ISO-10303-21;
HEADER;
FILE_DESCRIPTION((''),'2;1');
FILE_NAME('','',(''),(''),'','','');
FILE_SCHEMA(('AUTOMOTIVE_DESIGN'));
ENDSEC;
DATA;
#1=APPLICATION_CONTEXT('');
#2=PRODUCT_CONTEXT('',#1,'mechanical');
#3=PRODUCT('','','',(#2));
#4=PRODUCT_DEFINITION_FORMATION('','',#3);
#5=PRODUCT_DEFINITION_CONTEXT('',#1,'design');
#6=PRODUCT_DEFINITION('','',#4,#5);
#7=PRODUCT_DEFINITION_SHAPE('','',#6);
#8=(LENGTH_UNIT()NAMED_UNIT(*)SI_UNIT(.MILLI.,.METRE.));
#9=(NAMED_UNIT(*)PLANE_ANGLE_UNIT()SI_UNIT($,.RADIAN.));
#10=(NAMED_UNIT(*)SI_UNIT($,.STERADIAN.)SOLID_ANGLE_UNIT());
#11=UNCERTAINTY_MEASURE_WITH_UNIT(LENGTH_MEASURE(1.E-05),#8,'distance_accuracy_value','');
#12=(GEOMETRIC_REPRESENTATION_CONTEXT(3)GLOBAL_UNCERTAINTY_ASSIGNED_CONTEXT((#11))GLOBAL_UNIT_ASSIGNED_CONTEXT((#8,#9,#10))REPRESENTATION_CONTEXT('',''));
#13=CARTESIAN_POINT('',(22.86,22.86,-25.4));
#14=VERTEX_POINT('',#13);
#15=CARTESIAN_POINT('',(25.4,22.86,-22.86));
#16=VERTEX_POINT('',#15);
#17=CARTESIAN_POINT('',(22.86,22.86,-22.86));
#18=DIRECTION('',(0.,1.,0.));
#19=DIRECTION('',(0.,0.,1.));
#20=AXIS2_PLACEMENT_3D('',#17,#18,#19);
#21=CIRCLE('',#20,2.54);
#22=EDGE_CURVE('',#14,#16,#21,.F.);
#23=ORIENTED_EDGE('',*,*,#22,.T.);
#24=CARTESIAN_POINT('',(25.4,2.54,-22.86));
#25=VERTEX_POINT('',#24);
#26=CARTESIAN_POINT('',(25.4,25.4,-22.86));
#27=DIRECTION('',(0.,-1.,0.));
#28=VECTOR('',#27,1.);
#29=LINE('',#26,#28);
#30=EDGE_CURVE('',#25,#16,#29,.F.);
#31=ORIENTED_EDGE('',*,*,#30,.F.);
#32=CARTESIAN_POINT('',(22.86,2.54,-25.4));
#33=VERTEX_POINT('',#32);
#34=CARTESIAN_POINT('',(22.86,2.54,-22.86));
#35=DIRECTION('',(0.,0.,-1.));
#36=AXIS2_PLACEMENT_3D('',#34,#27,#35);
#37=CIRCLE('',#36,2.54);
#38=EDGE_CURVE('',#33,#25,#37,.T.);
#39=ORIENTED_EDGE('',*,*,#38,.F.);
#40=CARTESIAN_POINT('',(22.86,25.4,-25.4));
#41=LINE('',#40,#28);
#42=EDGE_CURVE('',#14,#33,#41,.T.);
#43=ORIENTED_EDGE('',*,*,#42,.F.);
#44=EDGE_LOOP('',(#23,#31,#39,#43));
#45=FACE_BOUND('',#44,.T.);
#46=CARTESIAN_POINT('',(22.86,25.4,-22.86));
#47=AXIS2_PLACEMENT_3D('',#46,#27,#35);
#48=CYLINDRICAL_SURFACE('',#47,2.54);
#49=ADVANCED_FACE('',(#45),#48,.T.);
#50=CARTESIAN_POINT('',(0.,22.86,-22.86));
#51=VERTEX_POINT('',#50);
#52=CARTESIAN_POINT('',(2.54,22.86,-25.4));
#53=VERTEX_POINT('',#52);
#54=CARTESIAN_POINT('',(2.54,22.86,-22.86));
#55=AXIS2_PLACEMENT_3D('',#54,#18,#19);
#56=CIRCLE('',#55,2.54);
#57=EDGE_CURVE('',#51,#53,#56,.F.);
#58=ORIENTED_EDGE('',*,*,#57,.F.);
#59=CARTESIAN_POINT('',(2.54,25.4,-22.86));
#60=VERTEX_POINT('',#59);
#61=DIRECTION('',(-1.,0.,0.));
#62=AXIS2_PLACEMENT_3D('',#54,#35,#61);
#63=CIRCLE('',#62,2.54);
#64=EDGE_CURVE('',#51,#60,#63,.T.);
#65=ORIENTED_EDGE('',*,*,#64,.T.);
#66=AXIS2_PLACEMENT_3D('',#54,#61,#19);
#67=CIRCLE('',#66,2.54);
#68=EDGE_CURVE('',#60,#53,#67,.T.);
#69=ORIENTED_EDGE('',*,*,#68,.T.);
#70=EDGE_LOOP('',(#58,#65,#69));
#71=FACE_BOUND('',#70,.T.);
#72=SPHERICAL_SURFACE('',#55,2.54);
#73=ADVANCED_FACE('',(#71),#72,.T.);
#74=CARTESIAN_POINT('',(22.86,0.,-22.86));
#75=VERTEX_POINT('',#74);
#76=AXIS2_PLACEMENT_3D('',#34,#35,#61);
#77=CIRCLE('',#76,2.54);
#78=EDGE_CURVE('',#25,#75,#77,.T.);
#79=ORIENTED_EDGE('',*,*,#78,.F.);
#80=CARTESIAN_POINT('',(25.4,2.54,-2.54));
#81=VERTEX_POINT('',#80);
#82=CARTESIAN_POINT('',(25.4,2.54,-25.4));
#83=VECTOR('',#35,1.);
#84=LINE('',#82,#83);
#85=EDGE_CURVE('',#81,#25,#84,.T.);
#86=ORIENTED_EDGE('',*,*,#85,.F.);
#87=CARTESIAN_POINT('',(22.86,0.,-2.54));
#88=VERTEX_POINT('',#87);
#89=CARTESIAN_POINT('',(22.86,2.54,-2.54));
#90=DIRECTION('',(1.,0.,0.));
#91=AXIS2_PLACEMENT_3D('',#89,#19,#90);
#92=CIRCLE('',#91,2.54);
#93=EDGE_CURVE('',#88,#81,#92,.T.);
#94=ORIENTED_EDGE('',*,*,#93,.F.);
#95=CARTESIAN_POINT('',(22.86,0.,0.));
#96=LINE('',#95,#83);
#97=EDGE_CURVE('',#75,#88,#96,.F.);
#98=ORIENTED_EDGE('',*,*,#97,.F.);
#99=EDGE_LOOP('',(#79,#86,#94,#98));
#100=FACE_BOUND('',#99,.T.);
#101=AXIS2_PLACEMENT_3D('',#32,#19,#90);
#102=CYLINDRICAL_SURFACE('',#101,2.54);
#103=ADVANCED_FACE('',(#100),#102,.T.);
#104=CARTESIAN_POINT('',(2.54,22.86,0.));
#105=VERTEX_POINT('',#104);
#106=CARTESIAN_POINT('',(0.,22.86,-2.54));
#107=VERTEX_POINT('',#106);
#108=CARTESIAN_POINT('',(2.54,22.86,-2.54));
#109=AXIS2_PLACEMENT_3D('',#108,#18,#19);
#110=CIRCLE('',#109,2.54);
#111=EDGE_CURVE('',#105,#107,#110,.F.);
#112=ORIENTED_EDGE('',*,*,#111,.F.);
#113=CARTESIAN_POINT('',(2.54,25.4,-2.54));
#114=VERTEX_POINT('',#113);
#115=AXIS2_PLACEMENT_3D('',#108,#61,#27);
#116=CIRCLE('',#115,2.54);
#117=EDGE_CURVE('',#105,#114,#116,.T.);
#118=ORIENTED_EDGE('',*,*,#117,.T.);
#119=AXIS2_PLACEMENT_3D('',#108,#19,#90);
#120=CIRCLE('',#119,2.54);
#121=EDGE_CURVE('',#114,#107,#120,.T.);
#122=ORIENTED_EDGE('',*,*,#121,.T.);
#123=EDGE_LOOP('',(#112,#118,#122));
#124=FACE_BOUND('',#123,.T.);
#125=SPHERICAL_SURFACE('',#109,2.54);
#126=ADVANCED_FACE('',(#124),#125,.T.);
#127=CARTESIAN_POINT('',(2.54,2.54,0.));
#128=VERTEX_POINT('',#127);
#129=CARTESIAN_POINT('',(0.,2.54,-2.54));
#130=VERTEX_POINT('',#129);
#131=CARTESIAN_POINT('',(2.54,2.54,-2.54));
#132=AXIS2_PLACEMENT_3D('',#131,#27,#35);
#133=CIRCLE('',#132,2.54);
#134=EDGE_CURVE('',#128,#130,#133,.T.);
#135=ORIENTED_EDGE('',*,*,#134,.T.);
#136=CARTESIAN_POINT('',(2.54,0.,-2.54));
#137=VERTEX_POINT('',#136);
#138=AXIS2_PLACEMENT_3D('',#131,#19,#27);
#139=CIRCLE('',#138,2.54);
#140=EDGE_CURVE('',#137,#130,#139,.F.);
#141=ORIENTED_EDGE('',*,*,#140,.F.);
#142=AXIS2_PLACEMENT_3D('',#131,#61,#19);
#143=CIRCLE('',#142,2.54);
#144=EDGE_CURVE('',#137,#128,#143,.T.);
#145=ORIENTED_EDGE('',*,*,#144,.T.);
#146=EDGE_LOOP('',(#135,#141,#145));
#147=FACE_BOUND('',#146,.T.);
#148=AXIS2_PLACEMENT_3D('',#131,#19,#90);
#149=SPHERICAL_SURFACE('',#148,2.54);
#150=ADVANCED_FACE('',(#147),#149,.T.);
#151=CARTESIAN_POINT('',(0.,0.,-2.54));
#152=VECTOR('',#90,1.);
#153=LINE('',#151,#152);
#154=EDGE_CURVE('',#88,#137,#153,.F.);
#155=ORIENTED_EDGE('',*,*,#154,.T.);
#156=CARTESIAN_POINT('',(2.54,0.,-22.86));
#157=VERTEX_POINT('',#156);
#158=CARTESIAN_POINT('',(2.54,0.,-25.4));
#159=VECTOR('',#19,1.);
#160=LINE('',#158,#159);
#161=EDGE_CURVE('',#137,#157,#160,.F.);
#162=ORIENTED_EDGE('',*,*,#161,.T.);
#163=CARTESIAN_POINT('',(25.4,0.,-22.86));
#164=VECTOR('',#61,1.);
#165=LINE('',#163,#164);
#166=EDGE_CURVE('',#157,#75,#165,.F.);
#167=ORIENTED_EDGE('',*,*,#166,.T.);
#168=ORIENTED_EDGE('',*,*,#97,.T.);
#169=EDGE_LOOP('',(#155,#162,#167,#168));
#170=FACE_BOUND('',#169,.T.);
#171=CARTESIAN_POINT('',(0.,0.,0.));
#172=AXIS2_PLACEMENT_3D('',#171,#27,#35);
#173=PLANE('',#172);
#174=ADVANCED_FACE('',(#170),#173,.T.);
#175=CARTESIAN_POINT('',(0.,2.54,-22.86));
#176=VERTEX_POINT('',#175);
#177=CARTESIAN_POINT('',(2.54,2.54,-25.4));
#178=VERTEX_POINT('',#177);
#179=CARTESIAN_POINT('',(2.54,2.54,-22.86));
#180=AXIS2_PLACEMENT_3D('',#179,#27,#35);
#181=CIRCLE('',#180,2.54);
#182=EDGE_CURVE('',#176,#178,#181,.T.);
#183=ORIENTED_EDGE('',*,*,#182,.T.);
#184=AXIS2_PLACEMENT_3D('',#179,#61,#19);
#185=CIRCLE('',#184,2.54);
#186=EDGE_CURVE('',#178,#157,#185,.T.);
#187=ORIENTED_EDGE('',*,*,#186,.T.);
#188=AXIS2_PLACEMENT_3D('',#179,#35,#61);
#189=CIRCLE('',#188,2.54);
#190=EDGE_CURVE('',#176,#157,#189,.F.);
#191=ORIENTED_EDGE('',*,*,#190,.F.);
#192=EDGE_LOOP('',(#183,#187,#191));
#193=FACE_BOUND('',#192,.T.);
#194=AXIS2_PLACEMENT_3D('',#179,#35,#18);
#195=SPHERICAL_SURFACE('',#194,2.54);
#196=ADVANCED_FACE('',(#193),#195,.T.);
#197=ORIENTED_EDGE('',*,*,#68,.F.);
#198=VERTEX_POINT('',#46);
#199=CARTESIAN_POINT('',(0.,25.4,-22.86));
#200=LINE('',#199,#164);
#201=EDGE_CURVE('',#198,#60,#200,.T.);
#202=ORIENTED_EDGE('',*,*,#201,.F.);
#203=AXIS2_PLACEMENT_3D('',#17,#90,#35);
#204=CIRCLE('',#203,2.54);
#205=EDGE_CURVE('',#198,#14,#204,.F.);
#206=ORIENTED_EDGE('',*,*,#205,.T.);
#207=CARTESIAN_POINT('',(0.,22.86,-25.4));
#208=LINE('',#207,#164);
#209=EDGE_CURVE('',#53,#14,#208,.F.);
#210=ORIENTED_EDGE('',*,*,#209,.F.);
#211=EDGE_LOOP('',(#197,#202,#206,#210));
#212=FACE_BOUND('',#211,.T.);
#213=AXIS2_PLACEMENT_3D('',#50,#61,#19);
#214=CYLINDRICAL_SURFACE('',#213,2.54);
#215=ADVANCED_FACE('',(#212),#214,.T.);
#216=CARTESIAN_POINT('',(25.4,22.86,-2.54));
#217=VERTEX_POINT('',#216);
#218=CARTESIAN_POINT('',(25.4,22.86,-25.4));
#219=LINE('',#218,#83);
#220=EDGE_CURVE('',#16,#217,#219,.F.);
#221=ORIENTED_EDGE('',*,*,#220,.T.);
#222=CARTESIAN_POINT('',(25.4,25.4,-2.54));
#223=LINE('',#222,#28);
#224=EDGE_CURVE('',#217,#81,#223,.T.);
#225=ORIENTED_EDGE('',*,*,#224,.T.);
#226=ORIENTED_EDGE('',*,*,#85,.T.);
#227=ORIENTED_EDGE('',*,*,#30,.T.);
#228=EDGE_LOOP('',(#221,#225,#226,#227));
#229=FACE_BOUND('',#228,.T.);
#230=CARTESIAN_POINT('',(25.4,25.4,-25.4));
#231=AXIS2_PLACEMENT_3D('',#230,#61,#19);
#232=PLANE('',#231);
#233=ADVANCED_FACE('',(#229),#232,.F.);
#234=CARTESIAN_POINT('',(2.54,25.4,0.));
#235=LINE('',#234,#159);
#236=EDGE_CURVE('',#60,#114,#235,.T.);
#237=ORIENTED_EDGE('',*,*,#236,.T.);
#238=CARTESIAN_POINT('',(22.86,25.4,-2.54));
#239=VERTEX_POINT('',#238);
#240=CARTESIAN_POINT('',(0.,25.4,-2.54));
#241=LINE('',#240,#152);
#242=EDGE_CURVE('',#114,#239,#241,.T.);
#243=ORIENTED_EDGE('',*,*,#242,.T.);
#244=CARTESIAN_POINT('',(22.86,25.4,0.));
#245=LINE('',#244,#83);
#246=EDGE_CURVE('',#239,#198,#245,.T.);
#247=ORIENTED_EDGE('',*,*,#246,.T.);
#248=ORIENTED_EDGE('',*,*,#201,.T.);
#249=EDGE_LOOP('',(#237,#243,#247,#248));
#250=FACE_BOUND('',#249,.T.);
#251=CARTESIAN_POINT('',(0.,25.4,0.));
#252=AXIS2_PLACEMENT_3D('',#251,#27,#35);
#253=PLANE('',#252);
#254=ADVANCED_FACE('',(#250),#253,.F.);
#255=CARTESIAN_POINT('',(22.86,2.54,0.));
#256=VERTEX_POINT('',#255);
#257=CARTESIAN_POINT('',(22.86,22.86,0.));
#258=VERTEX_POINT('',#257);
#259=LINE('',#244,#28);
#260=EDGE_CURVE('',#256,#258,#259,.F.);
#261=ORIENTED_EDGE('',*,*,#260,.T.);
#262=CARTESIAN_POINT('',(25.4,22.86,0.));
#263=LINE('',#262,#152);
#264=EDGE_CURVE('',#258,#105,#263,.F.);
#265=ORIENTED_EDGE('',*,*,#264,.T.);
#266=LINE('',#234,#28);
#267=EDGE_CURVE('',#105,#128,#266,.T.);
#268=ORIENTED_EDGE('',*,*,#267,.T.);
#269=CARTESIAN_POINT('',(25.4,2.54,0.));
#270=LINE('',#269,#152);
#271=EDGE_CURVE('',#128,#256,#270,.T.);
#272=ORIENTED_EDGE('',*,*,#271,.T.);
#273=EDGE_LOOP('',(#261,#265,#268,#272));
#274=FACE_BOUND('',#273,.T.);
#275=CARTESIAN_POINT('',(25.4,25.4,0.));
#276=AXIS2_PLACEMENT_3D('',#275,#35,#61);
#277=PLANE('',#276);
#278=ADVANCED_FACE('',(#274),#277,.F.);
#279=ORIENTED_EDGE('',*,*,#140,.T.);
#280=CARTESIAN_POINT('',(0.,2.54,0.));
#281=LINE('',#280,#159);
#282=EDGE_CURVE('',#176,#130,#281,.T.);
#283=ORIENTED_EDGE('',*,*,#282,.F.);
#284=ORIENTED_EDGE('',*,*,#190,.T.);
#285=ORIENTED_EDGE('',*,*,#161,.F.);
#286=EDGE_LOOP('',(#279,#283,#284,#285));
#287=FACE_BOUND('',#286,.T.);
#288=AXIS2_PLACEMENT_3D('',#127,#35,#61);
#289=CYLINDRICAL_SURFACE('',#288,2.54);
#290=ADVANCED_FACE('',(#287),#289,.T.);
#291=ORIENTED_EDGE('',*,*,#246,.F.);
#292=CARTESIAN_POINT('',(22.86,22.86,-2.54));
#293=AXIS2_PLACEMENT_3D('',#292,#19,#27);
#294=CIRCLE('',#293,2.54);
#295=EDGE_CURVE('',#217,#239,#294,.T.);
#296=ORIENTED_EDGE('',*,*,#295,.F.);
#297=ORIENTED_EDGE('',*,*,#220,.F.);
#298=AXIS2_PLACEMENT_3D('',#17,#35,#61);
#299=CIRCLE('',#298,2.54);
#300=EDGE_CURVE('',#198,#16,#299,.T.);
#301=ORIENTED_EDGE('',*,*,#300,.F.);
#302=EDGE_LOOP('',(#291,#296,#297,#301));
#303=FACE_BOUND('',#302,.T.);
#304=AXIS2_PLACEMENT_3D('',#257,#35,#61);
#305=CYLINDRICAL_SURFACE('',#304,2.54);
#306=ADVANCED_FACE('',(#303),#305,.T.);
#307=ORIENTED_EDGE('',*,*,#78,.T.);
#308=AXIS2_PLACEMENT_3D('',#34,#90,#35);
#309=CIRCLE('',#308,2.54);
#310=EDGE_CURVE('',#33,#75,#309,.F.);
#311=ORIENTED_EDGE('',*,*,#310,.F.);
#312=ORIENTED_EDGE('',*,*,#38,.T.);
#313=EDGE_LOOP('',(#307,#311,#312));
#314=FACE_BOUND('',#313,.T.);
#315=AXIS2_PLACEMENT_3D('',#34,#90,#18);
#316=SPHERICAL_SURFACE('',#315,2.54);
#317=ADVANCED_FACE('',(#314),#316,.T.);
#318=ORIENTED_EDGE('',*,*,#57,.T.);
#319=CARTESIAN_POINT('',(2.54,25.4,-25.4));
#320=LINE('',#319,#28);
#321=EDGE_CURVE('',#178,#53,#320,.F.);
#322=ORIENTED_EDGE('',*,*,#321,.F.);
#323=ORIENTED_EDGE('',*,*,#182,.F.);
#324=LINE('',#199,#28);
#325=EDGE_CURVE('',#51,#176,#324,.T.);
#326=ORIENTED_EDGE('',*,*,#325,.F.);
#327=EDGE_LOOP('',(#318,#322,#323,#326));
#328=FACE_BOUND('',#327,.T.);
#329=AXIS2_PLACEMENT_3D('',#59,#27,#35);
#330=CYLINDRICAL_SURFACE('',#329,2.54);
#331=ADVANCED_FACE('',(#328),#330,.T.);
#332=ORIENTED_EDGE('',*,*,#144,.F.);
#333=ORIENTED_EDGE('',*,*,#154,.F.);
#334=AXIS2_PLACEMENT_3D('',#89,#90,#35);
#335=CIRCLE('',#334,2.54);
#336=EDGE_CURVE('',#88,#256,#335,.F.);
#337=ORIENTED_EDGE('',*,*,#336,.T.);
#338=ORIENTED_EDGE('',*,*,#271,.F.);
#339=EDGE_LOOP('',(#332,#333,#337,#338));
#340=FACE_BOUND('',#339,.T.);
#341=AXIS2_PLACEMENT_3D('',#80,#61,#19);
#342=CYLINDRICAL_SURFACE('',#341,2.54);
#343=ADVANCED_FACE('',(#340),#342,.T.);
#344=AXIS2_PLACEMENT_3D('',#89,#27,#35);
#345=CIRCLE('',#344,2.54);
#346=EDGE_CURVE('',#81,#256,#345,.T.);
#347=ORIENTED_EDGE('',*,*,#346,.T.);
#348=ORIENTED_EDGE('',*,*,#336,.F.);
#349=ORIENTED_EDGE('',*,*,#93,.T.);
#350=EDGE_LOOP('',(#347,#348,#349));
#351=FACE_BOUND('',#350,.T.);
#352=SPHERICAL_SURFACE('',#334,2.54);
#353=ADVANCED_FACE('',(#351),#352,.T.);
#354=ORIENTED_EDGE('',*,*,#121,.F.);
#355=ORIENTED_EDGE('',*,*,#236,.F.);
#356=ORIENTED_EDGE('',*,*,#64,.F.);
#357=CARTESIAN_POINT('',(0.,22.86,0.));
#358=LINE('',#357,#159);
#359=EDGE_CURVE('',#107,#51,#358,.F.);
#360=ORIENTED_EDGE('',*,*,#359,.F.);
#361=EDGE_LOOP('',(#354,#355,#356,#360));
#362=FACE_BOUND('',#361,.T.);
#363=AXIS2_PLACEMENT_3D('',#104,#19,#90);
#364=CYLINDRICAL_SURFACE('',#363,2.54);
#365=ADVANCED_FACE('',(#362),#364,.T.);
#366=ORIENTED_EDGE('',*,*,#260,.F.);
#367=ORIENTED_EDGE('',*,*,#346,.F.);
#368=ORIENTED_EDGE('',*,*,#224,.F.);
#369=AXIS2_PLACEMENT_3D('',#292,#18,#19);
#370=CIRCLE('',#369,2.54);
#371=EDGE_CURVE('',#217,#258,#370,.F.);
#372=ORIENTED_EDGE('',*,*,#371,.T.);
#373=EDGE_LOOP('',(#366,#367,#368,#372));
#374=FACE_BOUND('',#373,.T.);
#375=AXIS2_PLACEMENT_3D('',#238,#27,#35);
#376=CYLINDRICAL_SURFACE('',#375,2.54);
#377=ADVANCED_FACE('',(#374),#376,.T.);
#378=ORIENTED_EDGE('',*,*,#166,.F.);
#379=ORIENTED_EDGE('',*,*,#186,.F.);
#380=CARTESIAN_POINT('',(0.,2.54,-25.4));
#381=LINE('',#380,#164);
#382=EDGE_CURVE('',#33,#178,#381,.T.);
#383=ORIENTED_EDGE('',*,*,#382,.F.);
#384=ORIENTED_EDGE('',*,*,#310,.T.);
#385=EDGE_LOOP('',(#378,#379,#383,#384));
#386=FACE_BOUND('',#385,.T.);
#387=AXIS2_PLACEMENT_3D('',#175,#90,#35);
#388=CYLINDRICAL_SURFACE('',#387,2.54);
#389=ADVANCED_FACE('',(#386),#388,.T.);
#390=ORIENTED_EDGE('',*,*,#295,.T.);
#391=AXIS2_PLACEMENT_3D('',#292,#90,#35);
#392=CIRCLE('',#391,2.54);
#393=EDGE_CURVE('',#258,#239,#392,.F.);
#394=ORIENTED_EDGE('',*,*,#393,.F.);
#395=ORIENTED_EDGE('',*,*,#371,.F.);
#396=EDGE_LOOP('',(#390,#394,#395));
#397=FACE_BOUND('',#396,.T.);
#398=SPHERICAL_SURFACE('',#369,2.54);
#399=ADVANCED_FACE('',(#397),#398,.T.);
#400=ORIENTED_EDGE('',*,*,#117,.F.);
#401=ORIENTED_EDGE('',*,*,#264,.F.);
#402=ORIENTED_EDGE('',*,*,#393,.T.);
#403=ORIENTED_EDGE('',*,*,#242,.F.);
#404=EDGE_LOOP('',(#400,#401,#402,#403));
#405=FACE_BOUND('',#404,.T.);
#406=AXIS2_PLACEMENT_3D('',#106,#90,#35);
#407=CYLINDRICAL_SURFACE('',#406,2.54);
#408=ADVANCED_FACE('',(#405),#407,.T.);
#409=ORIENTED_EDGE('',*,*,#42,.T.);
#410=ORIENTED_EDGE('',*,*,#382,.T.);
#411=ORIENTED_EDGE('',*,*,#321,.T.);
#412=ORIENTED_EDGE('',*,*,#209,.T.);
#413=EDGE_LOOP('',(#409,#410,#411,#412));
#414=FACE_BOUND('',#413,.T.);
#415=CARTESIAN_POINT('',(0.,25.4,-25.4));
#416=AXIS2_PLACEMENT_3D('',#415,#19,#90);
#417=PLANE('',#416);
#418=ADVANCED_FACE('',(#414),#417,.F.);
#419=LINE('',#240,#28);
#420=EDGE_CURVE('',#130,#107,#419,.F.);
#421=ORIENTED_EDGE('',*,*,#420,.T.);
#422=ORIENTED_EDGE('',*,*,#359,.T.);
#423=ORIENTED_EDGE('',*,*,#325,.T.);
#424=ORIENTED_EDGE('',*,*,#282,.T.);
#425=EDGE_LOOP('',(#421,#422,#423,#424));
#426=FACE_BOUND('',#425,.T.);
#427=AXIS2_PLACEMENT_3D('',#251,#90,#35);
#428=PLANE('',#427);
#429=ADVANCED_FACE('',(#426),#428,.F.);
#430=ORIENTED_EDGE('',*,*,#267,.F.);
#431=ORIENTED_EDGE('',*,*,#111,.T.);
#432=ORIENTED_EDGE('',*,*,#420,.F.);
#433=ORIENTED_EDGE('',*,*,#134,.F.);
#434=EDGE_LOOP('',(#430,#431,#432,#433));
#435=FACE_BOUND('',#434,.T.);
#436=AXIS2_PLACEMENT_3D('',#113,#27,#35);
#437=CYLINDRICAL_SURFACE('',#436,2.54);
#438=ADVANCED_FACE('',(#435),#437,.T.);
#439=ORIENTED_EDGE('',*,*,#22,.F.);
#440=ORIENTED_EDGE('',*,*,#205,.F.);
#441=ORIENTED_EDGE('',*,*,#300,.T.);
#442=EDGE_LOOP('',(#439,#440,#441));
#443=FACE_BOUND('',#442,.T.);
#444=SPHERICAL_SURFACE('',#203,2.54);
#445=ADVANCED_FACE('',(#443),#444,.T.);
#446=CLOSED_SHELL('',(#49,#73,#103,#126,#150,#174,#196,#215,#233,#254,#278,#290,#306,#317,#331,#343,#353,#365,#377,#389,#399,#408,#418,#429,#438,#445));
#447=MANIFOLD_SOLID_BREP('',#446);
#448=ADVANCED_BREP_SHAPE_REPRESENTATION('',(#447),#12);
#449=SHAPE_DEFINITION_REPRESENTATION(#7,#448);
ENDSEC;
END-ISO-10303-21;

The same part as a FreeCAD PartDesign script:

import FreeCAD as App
import Part
import Sketcher
from FreeCAD import Vector
Q = App.Units.Quantity

doc = App.newDocument("Part")
params = doc.addObject("Spreadsheet::Sheet", "Params")
for row, (alias, value) in enumerate([
    ("sketch1_width", "1 in"),
    ("pad1_length", "1 in"),
    ("fillet_radius", "0.1 in"),
], start=1):
    params.set(f"A{row}", alias)
    params.set(f"B{row}", "=" + value)
    params.setAlias(f"B{row}", alias)

body = doc.addObject("PartDesign::Body", "Body")

# Sketch on XZ plane
sketch1 = body.newObject("Sketcher::SketchObject", "Sketch")
sketch1.AttachmentSupport = (doc.getObject("XZ_Plane"), [""])
sketch1.MapMode = "FlatFace"
sketch1.addGeometry([
    Part.LineSegment(Vector(0, -25, 0), Vector(0, 0, 0)),
    Part.LineSegment(Vector(0, 0, 0), Vector(25, 0, 0)),
    Part.LineSegment(Vector(25, 0, 0), Vector(25, -25, 0)),
    Part.LineSegment(Vector(25, -25, 0), Vector(0, -25, 0)),
], False)
sketch1.addConstraint([
    Sketcher.Constraint("Coincident", 0, 2, 1, 1),
    Sketcher.Constraint("Coincident", 1, 2, 2, 1),
    Sketcher.Constraint("Coincident", 2, 2, 3, 1),
    Sketcher.Constraint("Coincident", 3, 2, 0, 1),
    Sketcher.Constraint("Vertical", 0),
    Sketcher.Constraint("Horizontal", 1),
    Sketcher.Constraint("Vertical", 2),
    Sketcher.Constraint("Horizontal", 3),
    Sketcher.Constraint("Coincident", 0, 2, -1, 1),
    Sketcher.Constraint("Equal", 3, 0),
    Sketcher.Constraint("DistanceX", 1, 1, 1, 2, Q("1 in")),
])
sketch1.setExpression("Constraints[10]", "Params.sketch1_width")
pad1 = body.newObject("PartDesign::Pad", "Pad")
pad1.Profile = sketch1
pad1.setExpression("Length", "Params.pad1_length")
pad1.Reversed = True
doc.recompute()

fillet = body.newObject("PartDesign::Fillet", "Fillet")
fillet.Base = (pad1, ["Edge1"])
fillet.UseAllEdges = True
fillet.setExpression("Radius", "Params.fillet_radius")

doc.recompute()
